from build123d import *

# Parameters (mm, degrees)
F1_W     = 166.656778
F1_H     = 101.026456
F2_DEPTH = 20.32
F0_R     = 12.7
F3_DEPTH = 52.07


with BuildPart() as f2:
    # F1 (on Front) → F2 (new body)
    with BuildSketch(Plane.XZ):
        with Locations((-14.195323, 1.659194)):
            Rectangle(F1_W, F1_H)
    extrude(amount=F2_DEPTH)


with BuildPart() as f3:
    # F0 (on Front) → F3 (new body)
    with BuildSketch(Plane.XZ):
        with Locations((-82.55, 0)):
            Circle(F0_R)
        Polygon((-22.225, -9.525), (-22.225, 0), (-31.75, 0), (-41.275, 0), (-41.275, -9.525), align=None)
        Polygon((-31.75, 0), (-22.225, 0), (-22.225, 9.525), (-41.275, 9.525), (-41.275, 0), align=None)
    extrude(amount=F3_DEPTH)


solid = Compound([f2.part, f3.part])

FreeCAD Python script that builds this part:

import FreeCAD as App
import Part
import Sketcher

V = App.Vector
Q = App.Units.Quantity


def add_polygon(sketch, points):
    """Adds a closed chain of lines whose ends are joined by coincident constraints."""
    first, n = sketch.GeometryCount, len(points)
    for a, b in zip(points, points[1:] + points[:1]):
        sketch.addGeometry(Part.LineSegment(App.Vector(*a, 0), App.Vector(*b, 0)), False)
    for i in range(n):
        sketch.addConstraint(Sketcher.Constraint("Coincident", first + i, 2, first + (i + 1) % n, 1))

doc = App.newDocument("Part")
body = doc.addObject("PartDesign::Body", "Body")

# Sketch on XZ plane
sketch1 = body.newObject("Sketcher::SketchObject", "Sketch")
sketch1.AttachmentSupport = (doc.getObject("XZ_Plane"), [""])
sketch1.MapMode = "FlatFace"
add_polygon(sketch1, [(-98, 52), (-98, -49), (69, -49), (69, 52)])  # lines 0-3
sketch1.addConstraint([
    Sketcher.Constraint("Vertical", 0),
    Sketcher.Constraint("Horizontal", 1),
    Sketcher.Constraint("Vertical", 2),
    Sketcher.Constraint("Horizontal", 3),
    Sketcher.Constraint("DistanceX", 1, 1, 1, 2, 166.656778),
    Sketcher.Constraint("DistanceY", 0, 2, 0, 1, 101.026456),
    Sketcher.Constraint("DistanceY", -1, 1, 2, 2, 52.172422),
    Sketcher.Constraint("DistanceX", 0, 2, -1, 1, 97.523712),
])
pad1 = body.newObject("PartDesign::Pad", "Pad")
pad1.Profile = sketch1
pad1.Length = Q("0.8 in")
body2 = doc.addObject("PartDesign::Body", "Body001")
body2.AllowCompound = True

# Sketch on XZ plane
sketch2 = body2.newObject("Sketcher::SketchObject", "Sketch001")
sketch2.AttachmentSupport = (doc.getObject("XZ_Plane001"), [""])
sketch2.MapMode = "FlatFace"
sketch2.addGeometry(Part.Circle(V(-83, 0, 0), V(0, 0, 1), 13), False)  # 0
add_polygon(sketch2, [(-22, -10), (-22, 10), (-41, 10), (-41, -10)])  # lines 1-4
sketch2.addConstraint([
    Sketcher.Constraint("Vertical", 1),
    Sketcher.Constraint("Horizontal", 2),
    Sketcher.Constraint("Vertical", 3),
    Sketcher.Constraint("Horizontal", 4),
    Sketcher.Constraint("PointOnObject", 0, 3, -1),
    Sketcher.Constraint("Equal", 4, 1),
    Sketcher.Constraint("Diameter", 0, Q("1 in")),
    Sketcher.Constraint("DistanceX", 2, 2, 2, 1, Q("0.75 in")),
    Sketcher.Constraint("DistanceX", 0, 3, -1, 1, Q("3.25 in")),
    Sketcher.Constraint("DistanceX", 1, 2, -1, 1, Q("0.875 in")),
    Sketcher.Constraint("DistanceY", -1, 1, 1, 2, Q("0.375 in")),
])
pad2 = body2.newObject("PartDesign::Pad", "Pad001")
pad2.Profile = sketch2
pad2.Length = Q("2.05 in")

doc.recompute()
